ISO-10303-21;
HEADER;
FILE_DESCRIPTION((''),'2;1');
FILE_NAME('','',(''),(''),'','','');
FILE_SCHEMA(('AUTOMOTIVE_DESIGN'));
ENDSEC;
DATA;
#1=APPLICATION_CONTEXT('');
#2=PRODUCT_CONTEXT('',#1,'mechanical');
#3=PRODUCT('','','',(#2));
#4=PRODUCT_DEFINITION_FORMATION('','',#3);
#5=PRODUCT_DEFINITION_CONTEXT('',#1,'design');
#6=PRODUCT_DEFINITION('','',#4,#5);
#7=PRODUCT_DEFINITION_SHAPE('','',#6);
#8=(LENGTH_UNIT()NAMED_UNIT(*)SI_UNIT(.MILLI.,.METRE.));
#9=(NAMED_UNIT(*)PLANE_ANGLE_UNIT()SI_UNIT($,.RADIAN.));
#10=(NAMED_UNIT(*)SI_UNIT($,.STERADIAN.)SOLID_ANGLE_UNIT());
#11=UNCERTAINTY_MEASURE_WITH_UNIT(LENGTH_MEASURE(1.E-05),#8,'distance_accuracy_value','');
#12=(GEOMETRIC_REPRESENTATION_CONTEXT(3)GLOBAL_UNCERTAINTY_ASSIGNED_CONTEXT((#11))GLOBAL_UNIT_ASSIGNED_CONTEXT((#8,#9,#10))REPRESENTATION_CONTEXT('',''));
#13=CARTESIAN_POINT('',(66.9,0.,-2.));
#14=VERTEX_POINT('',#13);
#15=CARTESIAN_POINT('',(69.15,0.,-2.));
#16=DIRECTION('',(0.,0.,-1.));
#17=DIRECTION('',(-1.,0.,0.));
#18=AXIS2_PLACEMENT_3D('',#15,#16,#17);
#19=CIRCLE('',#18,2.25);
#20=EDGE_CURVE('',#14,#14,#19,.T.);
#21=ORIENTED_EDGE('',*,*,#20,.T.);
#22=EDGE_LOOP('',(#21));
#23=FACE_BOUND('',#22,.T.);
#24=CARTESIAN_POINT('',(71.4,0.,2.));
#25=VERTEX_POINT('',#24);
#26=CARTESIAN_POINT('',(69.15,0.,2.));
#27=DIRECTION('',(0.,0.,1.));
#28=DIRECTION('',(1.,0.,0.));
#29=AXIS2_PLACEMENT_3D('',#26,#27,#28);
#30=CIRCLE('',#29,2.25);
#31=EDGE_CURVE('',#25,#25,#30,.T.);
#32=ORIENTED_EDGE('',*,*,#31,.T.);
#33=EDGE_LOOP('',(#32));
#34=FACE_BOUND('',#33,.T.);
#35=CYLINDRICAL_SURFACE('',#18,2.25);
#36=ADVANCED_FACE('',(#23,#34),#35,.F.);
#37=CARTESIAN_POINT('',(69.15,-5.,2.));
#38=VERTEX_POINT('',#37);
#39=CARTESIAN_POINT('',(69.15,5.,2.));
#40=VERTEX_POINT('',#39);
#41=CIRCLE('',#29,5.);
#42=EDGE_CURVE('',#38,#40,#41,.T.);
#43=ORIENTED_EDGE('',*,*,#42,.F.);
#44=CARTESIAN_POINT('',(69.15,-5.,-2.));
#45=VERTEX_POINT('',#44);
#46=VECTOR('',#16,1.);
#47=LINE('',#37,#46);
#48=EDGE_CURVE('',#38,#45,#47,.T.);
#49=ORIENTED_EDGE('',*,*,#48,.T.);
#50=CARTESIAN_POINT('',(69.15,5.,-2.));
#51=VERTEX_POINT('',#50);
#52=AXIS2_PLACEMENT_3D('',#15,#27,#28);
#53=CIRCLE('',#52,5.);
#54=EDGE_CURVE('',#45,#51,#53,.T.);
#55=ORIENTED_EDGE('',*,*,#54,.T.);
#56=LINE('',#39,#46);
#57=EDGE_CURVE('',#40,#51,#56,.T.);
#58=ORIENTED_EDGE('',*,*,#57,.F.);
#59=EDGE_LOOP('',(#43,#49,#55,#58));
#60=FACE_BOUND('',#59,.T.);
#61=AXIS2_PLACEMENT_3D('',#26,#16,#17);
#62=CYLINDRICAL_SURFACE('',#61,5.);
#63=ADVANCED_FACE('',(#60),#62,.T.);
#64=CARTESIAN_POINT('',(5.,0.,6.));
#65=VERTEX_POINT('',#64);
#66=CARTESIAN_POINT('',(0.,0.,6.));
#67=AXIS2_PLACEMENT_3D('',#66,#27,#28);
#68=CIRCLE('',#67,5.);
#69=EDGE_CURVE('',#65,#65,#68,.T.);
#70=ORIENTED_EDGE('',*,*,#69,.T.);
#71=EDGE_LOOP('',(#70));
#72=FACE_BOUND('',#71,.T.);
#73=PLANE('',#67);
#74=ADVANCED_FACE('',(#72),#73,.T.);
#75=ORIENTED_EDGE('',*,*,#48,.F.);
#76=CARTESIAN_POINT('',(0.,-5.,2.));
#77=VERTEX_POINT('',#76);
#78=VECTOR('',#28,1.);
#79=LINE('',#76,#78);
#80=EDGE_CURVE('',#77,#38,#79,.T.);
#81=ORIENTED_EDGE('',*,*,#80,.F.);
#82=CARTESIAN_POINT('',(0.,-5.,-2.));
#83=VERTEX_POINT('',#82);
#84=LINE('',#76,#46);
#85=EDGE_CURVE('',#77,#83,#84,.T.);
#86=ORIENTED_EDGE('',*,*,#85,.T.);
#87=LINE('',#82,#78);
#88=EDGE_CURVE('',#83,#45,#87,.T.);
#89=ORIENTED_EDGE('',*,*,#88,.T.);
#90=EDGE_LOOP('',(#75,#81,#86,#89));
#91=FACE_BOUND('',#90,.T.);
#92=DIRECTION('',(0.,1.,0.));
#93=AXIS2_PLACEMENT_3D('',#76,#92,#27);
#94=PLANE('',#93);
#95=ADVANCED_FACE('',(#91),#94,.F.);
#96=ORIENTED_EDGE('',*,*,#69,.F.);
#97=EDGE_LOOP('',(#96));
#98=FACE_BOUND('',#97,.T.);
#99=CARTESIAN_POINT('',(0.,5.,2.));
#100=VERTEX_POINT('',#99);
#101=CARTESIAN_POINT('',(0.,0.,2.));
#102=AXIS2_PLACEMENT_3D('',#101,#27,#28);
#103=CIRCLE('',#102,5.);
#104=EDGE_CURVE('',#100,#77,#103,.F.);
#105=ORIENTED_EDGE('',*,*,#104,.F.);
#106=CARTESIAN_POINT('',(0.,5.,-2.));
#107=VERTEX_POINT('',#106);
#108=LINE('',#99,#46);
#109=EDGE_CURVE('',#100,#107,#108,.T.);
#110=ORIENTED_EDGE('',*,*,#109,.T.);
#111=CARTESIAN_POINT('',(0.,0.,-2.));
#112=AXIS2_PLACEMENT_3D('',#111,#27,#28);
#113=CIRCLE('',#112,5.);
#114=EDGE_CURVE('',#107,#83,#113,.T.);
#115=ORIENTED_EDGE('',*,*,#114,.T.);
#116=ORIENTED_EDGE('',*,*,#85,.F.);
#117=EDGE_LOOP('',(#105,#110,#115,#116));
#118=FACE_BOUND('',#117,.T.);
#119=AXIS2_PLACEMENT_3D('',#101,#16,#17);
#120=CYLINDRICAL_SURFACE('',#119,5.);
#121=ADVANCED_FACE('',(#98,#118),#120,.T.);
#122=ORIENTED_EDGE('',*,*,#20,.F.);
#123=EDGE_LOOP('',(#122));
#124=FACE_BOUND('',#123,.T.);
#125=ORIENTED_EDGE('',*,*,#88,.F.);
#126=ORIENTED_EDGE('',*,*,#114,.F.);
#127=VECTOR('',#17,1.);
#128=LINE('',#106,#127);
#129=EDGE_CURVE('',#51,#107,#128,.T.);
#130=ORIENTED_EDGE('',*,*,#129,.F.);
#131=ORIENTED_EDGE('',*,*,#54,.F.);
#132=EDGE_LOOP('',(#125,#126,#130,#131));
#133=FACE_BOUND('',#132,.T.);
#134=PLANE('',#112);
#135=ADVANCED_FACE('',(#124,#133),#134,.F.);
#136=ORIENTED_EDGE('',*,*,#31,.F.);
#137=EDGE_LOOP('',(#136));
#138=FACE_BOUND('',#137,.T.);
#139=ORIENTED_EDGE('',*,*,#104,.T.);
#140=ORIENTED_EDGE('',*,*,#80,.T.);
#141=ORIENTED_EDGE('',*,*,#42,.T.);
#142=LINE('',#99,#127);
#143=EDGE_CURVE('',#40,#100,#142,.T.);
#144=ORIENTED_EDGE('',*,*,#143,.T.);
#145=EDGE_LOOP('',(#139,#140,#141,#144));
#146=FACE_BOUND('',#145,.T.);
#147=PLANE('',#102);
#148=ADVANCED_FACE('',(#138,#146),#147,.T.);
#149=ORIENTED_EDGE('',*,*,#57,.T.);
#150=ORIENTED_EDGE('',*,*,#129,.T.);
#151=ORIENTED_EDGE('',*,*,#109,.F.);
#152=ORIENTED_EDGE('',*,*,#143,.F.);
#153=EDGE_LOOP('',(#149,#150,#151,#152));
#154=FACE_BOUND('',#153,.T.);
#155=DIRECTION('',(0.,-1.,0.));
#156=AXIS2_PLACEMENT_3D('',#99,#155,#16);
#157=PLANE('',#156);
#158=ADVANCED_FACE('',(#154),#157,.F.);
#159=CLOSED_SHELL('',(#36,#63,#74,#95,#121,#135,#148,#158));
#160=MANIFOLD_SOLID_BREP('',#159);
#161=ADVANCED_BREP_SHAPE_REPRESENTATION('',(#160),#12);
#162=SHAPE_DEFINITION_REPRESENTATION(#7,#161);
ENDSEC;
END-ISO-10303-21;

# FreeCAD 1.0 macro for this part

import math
import FreeCAD as App
import Part
import Sketcher

V = App.Vector

doc = App.newDocument("Part")
body = doc.addObject("PartDesign::Body", "Body")

sketch1 = body.newObject("Sketcher::SketchObject", "Sketch")
sketch1.AttachmentSupport = (doc.getObject("XY_Plane"), [""])
sketch1.MapMode = "FlatFace"
sketch1.addGeometry([
    Part.LineSegment(V(69.15, 5, 0), V(0, 5, 0)),
    Part.ArcOfCircle(Part.Circle(V(0, 0, 0), V(0, 0, 1), 5), math.radians(90), math.radians(270)),
    Part.LineSegment(V(0, -5, 0), V(69.15, -5, 0)),
    Part.ArcOfCircle(Part.Circle(V(69.15, 0, 0), V(0, 0, 1), 5), math.radians(-90), math.radians(90)),
], False)
sketch1.addConstraint([
    Sketcher.Constraint("Tangent", 0, 2, 1, 1),
    Sketcher.Constraint("Tangent", 1, 2, 2, 1),
    Sketcher.Constraint("Tangent", 2, 2, 3, 1),
    Sketcher.Constraint("Tangent", 3, 2, 0, 1),
    Sketcher.Constraint("Horizontal", 0),
    Sketcher.Constraint("Horizontal", 2),
    Sketcher.Constraint("Coincident", 1, 3, -1, 1),
    Sketcher.Constraint("Radius", 1, 5.0),
    Sketcher.Constraint("DistanceX", 0, 2, 0, 1, 69.15),
])
pad1 = body.newObject("PartDesign::Pad", "Pad")
pad1.Profile = sketch1
pad1.Length = 4
pad1.Midplane = True

sketch2 = body.newObject("Sketcher::SketchObject", "Sketch001")
sketch2.AttachmentSupport = (doc.getObject("XY_Plane"), [""])
sketch2.MapMode = "FlatFace"
sketch2.AttachmentOffset = App.Placement(V(0, 0, 2), App.Rotation())
sketch2.addGeometry(Part.Circle(V(0, 0, 0), V(0, 0, 1), 5), False)
sketch2.addConstraint([
    Sketcher.Constraint("Coincident", 0, 3, -1, 1),
    Sketcher.Constraint("Diameter", 0, 10.0),
])
pad2 = body.newObject("PartDesign::Pad", "Pad001")
pad2.Profile = sketch2
pad2.Length = 8
pad2.Midplane = True

sketch3 = body.newObject("Sketcher::SketchObject", "Sketch002")
sketch3.AttachmentSupport = (doc.getObject("XY_Plane"), [""])
sketch3.MapMode = "FlatFace"
sketch3.AttachmentOffset = App.Placement(V(0, 0, -2), App.Rotation())
sketch3.addGeometry(Part.Circle(V(69.15, 0, 0), V(0, 0, 1), 2.25), False)
sketch3.addConstraint([
    Sketcher.Constraint("PointOnObject", 0, 3, -1),
    Sketcher.Constraint("Diameter", 0, 4.5),
    Sketcher.Constraint("DistanceX", -1, 1, 0, 3, 69.15),
])
doc.recompute()
hole = body.newObject("PartDesign::Hole", "Hole")
hole.Profile = sketch3
hole.ThreadType = "None"
hole.Diameter = 4.5
hole.DepthType = "ThroughAll"
hole.Reversed = True

doc.recompute()
